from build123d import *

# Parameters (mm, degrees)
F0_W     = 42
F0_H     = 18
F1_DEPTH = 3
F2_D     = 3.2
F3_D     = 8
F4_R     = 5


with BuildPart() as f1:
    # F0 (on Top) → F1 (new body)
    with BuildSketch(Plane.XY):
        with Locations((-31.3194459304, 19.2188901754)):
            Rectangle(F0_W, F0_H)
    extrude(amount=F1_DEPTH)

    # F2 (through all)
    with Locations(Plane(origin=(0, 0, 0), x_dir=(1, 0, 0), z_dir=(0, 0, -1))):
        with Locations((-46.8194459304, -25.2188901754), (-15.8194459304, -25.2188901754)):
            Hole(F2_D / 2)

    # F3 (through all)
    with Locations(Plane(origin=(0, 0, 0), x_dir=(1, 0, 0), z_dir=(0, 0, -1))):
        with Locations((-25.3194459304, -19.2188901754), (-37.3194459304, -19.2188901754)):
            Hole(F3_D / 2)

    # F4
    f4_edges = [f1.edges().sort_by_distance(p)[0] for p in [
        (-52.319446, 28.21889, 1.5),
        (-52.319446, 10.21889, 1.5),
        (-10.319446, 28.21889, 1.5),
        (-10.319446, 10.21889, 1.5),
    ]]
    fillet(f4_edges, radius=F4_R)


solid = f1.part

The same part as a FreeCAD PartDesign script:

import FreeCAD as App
import Part
import Sketcher

V = App.Vector
Q = App.Units.Quantity


def edges_at(feature, points):
    """Names of the edges that pass closest to the given points."""
    edges = feature.Shape.Edges
    near = lambda p: min(range(len(edges)), key=lambda i: edges[i].distToShape(Part.Vertex(*p))[0])
    return sorted({f"Edge{near(p) + 1}" for p in points})


def add_polygon(sketch, points):
    """Adds a closed chain of lines whose ends are joined by coincident constraints."""
    first, n = sketch.GeometryCount, len(points)
    for a, b in zip(points, points[1:] + points[:1]):
        sketch.addGeometry(Part.LineSegment(App.Vector(*a, 0), App.Vector(*b, 0)), False)
    for i in range(n):
        sketch.addConstraint(Sketcher.Constraint("Coincident", first + i, 2, first + (i + 1) % n, 1))

doc = App.newDocument("Part")
params = doc.addObject("Spreadsheet::Sheet", "Params")
for row, (alias, value) in enumerate([
    ("sketch1_width", "42 mm"),
    ("sketch1_height", "18 mm"),
    ("pad1_length", "3 mm"),
    ("sketch2_diameter", "3.2 mm"),
    ("hole_diameter", "3.2 mm"),
    ("sketch3_diameter", "8 mm"),
    ("hole2_diameter", "8 mm"),
    ("fillet_radius", "5 mm"),
], start=1):
    params.set(f"A{row}", alias)
    params.set(f"B{row}", "=" + value)
    params.setAlias(f"B{row}", alias)

body = doc.addObject("PartDesign::Body", "Body")

sketch1 = body.newObject("Sketcher::SketchObject", "Sketch")
sketch1.AttachmentSupport = (doc.getObject("XY_Plane"), [""])
sketch1.MapMode = "FlatFace"
add_polygon(sketch1, [(-52, 28), (-52, 10), (-10, 10), (-10, 28)])
sketch1.addConstraint([
    Sketcher.Constraint("Vertical", 0),
    Sketcher.Constraint("Horizontal", 1),
    Sketcher.Constraint("Vertical", 2),
    Sketcher.Constraint("Horizontal", 3),
    Sketcher.Constraint("DistanceX", 1, 1, 1, 2, Q("42 mm")),
    Sketcher.Constraint("DistanceY", 0, 2, 0, 1, Q("18 mm")),
    Sketcher.Constraint("DistanceY", -1, 1, 0, 2, Q("10.21889 mm")),
    Sketcher.Constraint("DistanceX", 0, 2, -1, 1, Q("52.319446 mm")),
])
sketch1.setExpression("Constraints[8]", "Params.sketch1_width")
sketch1.setExpression("Constraints[9]", "Params.sketch1_height")
pad1 = body.newObject("PartDesign::Pad", "Pad")
pad1.Profile = sketch1
pad1.setExpression("Length", "Params.pad1_length")

sketch2 = body.newObject("Sketcher::SketchObject", "Sketch001")
sketch2.AttachmentSupport = (doc.getObject("XY_Plane"), [""])
sketch2.MapMode = "FlatFace"
sketch2.addGeometry([
    Part.Circle(V(-46.8, 25.2, 0), V(0, 0, 1), 1.6),
    Part.Circle(V(-15.8, 25.2, 0), V(0, 0, 1), 1.6),
], False)
sketch2.addConstraint([
    Sketcher.Constraint("Equal", 0, 1),
    Sketcher.Constraint("Horizontal", 0, 3, 1, 3),
    Sketcher.Constraint("Diameter", 0, Q("3.2 mm")),
    Sketcher.Constraint("DistanceX", 0, 3, 1, 3, Q("31 mm")),
    Sketcher.Constraint("DistanceY", -1, 1, 0, 3, Q("25.21889 mm")),
    Sketcher.Constraint("DistanceX", 0, 3, -1, 1, Q("46.819446 mm")),
])
sketch2.setExpression("Constraints[2]", "Params.sketch2_diameter")
doc.recompute()
hole = body.newObject("PartDesign::Hole", "Hole")
hole.Profile = sketch2
hole.ThreadType = "None"
hole.setExpression("Diameter", "Params.hole_diameter")
hole.DepthType = "ThroughAll"
hole.Reversed = True

sketch3 = body.newObject("Sketcher::SketchObject", "Sketch002")
sketch3.AttachmentSupport = (doc.getObject("XY_Plane"), [""])
sketch3.MapMode = "FlatFace"
sketch3.addGeometry([
    Part.Circle(V(-25.3, 19.2, 0), V(0, 0, 1), 4),
    Part.Circle(V(-37.3, 19.2, 0), V(0, 0, 1), 4),
], False)
sketch3.addConstraint([
    Sketcher.Constraint("Equal", 0, 1),
    Sketcher.Constraint("Horizontal", 0, 3, 1, 3),
    Sketcher.Constraint("Diameter", 0, Q("8 mm")),
    Sketcher.Constraint("DistanceX", 1, 3, 0, 3, Q("12 mm")),
    Sketcher.Constraint("DistanceY", -1, 1, 0, 3, Q("19.21889 mm")),
    Sketcher.Constraint("DistanceX", 0, 3, -1, 1, Q("25.319446 mm")),
])
sketch3.setExpression("Constraints[2]", "Params.sketch3_diameter")
doc.recompute()
hole2 = body.newObject("PartDesign::Hole", "Hole001")
hole2.Profile = sketch3
hole2.ThreadType = "None"
hole2.setExpression("Diameter", "Params.hole2_diameter")
hole2.DepthType = "ThroughAll"
hole2.Reversed = True
doc.recompute()

fillet = body.newObject("PartDesign::Fillet", "Fillet")
fillet.Base = (hole2, edges_at(hole2, [
    (-52.319, 28.219, 1.5),
    (-52.319, 10.219, 1.5),
    (-10.319, 28.219, 1.5),
    (-10.319, 10.219, 1.5),
]))
fillet.setExpression("Radius", "Params.fillet_radius")

doc.recompute()
